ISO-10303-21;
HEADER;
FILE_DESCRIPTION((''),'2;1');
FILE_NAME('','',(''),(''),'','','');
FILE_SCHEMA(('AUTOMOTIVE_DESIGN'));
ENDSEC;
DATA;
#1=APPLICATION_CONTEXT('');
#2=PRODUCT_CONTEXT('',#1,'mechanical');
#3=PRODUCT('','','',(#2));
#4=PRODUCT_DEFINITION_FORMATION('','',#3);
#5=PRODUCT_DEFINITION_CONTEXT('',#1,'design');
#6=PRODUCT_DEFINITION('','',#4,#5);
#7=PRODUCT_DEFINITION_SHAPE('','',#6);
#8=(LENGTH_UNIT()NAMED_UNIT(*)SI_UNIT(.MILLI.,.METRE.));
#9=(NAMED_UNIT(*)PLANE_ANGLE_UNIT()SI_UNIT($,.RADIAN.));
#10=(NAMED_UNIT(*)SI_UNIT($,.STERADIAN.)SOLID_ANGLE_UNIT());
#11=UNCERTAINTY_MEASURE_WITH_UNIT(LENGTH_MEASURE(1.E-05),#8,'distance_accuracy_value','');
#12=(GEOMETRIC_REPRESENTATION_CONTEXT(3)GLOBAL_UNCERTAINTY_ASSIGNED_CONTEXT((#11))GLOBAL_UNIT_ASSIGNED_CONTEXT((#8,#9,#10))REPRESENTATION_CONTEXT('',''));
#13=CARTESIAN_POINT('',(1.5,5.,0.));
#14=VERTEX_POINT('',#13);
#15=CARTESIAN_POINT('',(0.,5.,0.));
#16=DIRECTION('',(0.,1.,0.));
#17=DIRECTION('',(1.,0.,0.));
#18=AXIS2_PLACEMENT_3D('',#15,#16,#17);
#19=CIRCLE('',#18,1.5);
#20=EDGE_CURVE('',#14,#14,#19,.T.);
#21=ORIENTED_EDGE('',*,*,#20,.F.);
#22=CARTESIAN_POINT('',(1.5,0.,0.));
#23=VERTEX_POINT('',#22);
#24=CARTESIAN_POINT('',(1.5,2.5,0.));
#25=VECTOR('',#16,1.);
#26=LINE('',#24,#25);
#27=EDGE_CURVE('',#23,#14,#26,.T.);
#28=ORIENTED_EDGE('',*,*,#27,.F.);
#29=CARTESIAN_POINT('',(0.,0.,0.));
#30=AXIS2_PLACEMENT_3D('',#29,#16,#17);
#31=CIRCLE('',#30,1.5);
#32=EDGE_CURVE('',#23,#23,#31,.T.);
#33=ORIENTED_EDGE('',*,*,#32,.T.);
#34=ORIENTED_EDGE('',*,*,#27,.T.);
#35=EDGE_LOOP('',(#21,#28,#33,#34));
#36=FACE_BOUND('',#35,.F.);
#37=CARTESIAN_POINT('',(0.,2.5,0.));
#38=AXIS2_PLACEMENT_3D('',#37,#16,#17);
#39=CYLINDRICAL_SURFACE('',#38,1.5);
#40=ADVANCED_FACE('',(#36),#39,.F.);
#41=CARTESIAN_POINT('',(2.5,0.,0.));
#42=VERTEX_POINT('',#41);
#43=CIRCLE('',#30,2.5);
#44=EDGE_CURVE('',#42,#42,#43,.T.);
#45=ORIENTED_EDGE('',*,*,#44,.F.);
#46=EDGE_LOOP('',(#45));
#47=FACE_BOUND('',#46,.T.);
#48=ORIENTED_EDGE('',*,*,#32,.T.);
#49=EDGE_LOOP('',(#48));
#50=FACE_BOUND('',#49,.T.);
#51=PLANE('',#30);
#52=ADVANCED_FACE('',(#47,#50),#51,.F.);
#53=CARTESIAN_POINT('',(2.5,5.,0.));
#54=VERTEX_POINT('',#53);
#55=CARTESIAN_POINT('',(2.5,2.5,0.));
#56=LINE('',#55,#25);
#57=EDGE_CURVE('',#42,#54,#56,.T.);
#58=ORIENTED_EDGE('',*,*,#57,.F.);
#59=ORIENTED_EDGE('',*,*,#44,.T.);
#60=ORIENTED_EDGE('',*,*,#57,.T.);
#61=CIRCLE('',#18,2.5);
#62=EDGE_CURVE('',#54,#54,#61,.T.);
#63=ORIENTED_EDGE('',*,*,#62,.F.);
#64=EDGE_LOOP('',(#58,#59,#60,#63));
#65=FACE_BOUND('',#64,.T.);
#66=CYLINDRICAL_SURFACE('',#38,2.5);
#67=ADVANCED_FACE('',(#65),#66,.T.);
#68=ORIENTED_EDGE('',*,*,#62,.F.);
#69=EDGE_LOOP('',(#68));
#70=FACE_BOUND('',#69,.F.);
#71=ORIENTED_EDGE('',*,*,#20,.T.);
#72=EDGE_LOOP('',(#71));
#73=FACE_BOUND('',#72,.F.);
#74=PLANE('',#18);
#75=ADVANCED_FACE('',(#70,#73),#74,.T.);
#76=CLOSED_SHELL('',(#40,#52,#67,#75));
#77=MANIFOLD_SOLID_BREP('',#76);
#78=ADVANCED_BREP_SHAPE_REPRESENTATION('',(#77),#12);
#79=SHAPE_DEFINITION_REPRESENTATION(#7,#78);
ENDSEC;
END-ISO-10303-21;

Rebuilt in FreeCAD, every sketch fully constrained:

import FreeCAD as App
import Part
import Sketcher
from FreeCAD import Vector


def add_polygon(sketch, points):
    """Adds a closed chain of lines whose ends are joined by coincident constraints."""
    first, n = sketch.GeometryCount, len(points)
    for a, b in zip(points, points[1:] + points[:1]):
        sketch.addGeometry(Part.LineSegment(App.Vector(*a, 0), App.Vector(*b, 0)), False)
    for i in range(n):
        sketch.addConstraint(Sketcher.Constraint("Coincident", first + i, 2, first + (i + 1) % n, 1))

doc = App.newDocument("Part")
body = doc.addObject("PartDesign::Body", "Body")

sketch1 = body.newObject("Sketcher::SketchObject", "Sketch")
sketch1.AttachmentSupport = (doc.getObject("XY_Plane"), [""])
sketch1.MapMode = "FlatFace"
add_polygon(sketch1, [(1.5, 5), (1.5, 0), (2.5, 0), (2.5, 5)])
sketch1.addConstraint(Sketcher.Constraint("Vertical", 0))
sketch1.addConstraint(Sketcher.Constraint("Horizontal", 1))
sketch1.addConstraint(Sketcher.Constraint("Vertical", 2))
sketch1.addConstraint(Sketcher.Constraint("Horizontal", 3))
sketch1.addConstraint(Sketcher.Constraint("PointOnObject", 0, 2, -1))
sketch1.addConstraint(Sketcher.Constraint("DistanceX", 1, 1, 1, 2, 1.0))
sketch1.addConstraint(Sketcher.Constraint("DistanceY", 0, 2, 0, 1, 5.0))
sketch1.addConstraint(Sketcher.Constraint("DistanceX", -1, 1, 0, 2, 1.5))
revolution = body.newObject("PartDesign::Revolution", "Revolution")
revolution.Profile = sketch1
revolution.ReferenceAxis = (sketch1, ["V_Axis"])
revolution.Angle = 360

doc.recompute()
